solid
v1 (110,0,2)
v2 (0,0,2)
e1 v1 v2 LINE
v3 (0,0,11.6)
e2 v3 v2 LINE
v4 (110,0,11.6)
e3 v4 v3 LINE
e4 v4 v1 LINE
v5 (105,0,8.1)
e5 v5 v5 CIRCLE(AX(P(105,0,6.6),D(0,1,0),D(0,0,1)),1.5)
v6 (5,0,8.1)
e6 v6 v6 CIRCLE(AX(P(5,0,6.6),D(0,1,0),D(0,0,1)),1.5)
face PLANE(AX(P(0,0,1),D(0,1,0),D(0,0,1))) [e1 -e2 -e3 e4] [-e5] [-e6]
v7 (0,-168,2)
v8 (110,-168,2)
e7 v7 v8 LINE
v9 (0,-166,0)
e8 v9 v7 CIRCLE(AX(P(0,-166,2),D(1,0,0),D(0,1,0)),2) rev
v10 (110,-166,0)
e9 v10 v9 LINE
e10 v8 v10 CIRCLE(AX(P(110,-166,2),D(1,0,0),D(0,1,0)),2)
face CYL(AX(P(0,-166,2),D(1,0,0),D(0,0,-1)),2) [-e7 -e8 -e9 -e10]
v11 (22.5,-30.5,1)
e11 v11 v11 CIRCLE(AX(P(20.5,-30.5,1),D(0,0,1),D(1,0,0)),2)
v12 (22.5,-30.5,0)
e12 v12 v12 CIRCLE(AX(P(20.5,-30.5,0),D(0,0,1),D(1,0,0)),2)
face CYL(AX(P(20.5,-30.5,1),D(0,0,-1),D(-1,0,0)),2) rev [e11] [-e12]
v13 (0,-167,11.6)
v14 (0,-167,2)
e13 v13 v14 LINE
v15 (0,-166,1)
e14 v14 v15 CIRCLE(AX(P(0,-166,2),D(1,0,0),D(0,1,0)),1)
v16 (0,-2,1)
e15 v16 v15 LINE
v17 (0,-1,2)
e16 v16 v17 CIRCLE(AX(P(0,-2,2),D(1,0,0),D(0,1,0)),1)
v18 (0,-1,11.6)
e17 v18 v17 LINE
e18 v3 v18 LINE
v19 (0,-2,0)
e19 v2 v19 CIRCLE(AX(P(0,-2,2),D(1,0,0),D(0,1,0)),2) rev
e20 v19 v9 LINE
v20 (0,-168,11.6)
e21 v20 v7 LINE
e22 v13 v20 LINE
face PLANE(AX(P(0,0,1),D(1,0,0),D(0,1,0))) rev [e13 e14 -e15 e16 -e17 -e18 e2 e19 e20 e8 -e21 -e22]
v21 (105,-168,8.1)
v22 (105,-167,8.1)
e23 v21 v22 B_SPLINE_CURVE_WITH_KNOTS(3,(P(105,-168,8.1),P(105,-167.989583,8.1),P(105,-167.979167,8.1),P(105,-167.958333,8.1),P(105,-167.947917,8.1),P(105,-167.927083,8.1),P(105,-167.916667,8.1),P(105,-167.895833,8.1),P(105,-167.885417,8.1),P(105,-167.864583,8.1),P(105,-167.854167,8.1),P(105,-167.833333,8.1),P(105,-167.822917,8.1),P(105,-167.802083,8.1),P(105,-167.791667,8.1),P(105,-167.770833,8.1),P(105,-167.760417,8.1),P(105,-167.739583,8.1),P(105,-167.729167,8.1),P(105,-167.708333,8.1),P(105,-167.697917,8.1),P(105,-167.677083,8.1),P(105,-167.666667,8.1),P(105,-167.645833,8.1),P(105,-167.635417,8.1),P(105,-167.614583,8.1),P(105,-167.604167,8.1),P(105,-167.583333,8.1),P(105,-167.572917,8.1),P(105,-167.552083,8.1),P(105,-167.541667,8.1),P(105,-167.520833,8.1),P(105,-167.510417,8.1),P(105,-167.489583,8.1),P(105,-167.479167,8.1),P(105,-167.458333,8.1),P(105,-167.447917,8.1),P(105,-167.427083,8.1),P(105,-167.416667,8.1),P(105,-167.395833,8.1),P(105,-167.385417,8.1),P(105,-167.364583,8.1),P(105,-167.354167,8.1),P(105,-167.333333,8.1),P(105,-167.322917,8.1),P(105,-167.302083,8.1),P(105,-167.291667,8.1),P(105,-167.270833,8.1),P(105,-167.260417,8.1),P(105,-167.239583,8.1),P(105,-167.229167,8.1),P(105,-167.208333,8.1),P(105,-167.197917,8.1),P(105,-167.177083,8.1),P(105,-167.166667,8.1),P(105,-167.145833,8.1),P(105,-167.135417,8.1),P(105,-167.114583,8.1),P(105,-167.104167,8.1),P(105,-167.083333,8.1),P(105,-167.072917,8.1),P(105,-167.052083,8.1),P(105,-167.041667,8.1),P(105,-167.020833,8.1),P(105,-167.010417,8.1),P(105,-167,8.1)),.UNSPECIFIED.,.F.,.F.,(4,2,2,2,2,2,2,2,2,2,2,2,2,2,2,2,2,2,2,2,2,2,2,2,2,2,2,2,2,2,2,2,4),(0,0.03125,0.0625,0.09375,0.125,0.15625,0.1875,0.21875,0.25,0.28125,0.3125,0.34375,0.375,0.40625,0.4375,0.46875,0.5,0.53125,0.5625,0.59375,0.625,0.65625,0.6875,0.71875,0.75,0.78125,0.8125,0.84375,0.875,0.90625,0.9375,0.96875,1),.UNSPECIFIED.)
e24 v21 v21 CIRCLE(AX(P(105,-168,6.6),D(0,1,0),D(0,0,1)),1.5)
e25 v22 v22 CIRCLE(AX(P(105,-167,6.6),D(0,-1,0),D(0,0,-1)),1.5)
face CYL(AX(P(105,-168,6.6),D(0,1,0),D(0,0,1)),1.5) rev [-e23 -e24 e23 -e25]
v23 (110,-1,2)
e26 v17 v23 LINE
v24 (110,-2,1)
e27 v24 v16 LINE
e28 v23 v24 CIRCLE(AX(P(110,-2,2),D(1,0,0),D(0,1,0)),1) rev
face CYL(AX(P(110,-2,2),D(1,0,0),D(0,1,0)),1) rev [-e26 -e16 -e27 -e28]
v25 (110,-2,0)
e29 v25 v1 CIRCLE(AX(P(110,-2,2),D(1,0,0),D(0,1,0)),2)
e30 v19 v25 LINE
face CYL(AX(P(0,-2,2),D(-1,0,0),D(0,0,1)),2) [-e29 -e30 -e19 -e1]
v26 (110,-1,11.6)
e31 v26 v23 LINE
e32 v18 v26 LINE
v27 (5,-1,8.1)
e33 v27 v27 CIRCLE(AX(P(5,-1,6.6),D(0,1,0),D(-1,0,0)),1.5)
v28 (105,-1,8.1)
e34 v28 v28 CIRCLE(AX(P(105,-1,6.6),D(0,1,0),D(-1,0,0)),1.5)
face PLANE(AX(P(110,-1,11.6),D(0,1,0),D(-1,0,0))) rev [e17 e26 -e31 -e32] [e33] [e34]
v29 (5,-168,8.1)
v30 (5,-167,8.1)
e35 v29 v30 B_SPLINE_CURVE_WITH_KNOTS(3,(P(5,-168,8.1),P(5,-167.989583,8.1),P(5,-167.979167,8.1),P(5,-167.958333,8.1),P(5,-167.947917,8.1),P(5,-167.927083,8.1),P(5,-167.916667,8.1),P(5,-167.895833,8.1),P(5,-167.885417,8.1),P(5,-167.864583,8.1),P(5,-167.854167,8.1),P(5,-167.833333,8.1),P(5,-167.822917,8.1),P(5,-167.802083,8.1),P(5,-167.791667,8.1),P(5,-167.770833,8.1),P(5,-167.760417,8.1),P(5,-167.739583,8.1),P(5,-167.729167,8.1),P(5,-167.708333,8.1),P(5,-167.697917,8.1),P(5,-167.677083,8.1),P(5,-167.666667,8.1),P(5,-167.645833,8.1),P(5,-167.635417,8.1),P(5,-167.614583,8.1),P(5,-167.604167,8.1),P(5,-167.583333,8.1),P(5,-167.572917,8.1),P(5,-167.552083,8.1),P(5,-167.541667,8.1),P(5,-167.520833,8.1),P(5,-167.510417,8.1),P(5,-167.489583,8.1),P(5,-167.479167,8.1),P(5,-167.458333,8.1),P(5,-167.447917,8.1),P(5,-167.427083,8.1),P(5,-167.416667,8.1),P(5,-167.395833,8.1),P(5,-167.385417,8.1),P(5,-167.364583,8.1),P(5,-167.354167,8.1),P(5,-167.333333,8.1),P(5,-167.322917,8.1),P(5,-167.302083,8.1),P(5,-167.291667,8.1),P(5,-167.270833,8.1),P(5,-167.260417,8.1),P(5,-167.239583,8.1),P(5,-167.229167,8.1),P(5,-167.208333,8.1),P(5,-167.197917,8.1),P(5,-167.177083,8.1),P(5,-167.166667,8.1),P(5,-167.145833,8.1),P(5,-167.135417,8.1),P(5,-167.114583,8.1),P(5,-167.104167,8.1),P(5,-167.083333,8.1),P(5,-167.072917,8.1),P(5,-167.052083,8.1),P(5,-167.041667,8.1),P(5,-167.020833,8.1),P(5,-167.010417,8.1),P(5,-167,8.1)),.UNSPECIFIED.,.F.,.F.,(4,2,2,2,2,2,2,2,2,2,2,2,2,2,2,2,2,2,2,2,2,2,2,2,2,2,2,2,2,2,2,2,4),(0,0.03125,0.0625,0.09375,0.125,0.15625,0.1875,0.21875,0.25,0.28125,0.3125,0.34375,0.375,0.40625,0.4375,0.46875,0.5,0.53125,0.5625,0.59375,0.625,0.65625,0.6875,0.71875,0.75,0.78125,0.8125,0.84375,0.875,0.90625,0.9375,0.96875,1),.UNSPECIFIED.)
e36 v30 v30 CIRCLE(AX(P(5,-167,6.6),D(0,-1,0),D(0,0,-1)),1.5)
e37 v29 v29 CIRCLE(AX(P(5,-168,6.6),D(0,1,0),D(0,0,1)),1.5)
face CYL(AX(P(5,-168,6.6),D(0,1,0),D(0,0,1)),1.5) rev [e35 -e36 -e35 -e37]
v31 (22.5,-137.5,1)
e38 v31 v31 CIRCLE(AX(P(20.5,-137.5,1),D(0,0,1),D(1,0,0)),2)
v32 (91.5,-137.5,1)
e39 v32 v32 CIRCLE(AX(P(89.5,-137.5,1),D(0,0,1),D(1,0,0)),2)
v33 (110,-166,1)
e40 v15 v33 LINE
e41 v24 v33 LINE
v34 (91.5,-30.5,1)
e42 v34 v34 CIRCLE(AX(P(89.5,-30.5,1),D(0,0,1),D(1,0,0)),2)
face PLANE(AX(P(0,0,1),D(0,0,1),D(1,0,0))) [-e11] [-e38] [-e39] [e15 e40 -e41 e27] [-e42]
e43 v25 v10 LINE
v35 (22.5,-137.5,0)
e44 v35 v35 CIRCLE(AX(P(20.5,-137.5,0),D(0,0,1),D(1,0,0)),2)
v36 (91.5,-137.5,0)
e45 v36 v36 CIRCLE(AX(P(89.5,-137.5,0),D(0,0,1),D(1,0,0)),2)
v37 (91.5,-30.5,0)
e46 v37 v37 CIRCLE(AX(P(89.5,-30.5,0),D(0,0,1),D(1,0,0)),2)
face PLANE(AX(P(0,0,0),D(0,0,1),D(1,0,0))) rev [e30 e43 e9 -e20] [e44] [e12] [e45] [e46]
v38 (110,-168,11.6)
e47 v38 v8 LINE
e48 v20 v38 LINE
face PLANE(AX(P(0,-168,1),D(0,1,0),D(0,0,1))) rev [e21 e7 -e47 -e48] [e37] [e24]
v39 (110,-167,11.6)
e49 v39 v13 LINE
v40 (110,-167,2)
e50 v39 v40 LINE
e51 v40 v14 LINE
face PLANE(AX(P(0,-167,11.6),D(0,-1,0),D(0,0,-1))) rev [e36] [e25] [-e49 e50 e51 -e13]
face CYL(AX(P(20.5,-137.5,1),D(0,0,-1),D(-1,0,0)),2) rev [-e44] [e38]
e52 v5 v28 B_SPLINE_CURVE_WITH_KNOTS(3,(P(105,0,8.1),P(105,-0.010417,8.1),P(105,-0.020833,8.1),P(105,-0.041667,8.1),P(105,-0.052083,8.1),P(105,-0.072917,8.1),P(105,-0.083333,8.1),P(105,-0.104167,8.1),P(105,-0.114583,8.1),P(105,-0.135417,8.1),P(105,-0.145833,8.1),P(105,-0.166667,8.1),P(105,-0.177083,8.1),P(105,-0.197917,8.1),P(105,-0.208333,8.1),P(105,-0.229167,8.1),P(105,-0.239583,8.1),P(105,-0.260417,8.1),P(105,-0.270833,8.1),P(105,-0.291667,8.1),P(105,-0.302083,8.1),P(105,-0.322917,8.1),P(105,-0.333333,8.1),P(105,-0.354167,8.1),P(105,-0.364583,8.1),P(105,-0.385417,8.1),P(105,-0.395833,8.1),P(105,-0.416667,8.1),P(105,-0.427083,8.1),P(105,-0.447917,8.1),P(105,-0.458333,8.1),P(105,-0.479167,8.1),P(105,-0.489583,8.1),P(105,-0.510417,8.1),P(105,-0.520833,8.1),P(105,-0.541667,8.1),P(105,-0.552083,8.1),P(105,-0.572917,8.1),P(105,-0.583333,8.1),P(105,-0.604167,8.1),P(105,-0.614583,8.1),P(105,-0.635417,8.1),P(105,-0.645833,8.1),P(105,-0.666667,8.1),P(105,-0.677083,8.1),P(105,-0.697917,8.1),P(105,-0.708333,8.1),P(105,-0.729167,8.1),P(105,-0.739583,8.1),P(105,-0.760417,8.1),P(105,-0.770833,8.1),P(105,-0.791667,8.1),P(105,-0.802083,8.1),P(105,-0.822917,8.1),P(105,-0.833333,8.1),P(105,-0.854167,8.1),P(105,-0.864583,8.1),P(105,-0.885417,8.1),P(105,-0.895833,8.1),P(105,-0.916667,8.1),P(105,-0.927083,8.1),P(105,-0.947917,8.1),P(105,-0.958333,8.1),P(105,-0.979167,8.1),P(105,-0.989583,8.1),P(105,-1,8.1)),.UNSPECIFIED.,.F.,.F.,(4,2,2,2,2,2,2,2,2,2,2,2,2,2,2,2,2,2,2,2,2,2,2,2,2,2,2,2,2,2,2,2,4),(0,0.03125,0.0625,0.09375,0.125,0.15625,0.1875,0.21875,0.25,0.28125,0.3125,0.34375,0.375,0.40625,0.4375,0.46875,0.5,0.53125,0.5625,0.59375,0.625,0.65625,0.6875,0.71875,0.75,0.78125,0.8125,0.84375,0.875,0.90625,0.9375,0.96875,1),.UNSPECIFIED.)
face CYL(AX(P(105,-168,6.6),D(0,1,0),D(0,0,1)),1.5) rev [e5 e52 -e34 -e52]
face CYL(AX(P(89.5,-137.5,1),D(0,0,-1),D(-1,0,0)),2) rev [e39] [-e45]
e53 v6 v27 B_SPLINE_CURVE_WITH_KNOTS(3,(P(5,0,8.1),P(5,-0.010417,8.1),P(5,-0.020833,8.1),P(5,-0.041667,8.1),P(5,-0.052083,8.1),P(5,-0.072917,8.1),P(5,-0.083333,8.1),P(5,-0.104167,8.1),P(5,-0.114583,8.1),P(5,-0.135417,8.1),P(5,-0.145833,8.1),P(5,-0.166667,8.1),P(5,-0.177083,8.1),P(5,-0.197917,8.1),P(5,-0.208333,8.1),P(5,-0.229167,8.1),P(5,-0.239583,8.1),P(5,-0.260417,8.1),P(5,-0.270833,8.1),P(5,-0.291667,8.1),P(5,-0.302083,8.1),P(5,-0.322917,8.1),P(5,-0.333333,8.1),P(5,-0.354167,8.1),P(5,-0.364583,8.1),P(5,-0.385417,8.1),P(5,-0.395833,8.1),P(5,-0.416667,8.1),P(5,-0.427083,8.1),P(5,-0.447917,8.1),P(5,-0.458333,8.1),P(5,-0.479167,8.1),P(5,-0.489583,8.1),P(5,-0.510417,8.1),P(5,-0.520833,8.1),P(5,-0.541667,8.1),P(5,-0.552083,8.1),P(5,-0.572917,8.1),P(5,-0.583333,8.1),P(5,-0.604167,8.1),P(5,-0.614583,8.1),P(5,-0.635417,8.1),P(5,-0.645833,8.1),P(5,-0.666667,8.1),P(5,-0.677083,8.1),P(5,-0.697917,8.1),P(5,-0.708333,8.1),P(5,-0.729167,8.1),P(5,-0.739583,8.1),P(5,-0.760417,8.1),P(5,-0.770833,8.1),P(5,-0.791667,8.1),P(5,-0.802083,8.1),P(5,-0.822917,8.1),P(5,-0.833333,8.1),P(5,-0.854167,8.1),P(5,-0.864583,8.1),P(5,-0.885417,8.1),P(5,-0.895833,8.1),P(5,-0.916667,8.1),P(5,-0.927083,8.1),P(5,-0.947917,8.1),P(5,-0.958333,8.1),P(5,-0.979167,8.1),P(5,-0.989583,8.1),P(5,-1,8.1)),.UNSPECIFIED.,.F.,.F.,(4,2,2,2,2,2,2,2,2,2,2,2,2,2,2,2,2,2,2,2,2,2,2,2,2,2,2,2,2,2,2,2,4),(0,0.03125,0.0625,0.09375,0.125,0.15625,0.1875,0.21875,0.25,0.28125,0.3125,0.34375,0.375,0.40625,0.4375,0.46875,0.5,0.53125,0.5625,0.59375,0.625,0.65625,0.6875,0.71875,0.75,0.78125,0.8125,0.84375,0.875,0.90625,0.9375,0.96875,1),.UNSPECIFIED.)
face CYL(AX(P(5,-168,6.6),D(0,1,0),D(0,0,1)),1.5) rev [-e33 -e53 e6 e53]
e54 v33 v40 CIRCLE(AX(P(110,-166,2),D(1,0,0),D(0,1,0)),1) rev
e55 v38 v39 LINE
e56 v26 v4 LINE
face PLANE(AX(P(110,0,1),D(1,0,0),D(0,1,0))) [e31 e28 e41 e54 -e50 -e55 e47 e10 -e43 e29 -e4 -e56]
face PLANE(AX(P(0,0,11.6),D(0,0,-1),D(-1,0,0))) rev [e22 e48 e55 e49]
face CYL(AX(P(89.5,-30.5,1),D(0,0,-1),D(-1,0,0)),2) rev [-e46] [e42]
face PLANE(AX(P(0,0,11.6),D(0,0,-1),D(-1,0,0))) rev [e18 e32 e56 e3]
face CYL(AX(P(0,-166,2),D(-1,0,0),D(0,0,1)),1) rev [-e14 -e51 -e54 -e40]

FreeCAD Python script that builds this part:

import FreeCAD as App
import Part
import Sketcher


def edges_at(feature, points):
    """Names of the edges that pass closest to the given points."""
    edges = feature.Shape.Edges
    near = lambda p: min(range(len(edges)), key=lambda i: edges[i].distToShape(Part.Vertex(*p))[0])
    return sorted({f"Edge{near(p) + 1}" for p in points})

doc = App.newDocument("Part")
body = doc.addObject("PartDesign::Body", "Body")

# Sketch on XY plane
sketch1 = body.newObject("Sketcher::SketchObject", "Sketch")
sketch1.AttachmentSupport = (doc.getObject("XY_Plane"), [""])
sketch1.MapMode = "FlatFace"
sketch1.addGeometry([
    Part.LineSegment(App.Vector(0, 0, 0), App.Vector(0, -168, 0)),  # 0
    Part.LineSegment(App.Vector(0, -168, 0), App.Vector(110, -168, 0)),  # 1
    Part.LineSegment(App.Vector(110, -168, 0), App.Vector(110, 0, 0)),  # 2
    Part.LineSegment(App.Vector(110, 0, 0), App.Vector(0, 0, 0)),  # 3
    Part.Circle(App.Vector(20.5, -137.5, 0), App.Vector(0, 0, 1), 2),  # 4
    Part.Circle(App.Vector(89.5, -137.5, 0), App.Vector(0, 0, 1), 2),  # 5
    Part.Circle(App.Vector(20.5, -30.5, 0), App.Vector(0, 0, 1), 2),  # 6
    Part.Circle(App.Vector(89.5, -30.5, 0), App.Vector(0, 0, 1), 2),  # 7
], False)
sketch1.addConstraint([
    Sketcher.Constraint("Coincident", 0, 2, 1, 1),
    Sketcher.Constraint("Coincident", 1, 2, 2, 1),
    Sketcher.Constraint("Coincident", 2, 2, 3, 1),
    Sketcher.Constraint("Coincident", 3, 2, 0, 1),
    Sketcher.Constraint("Vertical", 0),
    Sketcher.Constraint("Horizontal", 1),
    Sketcher.Constraint("Vertical", 2),
    Sketcher.Constraint("Horizontal", 3),
    Sketcher.Constraint("Coincident", 3, 2, -1, 1),
    Sketcher.Constraint("Equal", 4, 5),
    Sketcher.Constraint("Equal", 5, 6),
    Sketcher.Constraint("Equal", 6, 7),
    Sketcher.Constraint("Horizontal", 4, 3, 5, 3),
    Sketcher.Constraint("Horizontal", 6, 3, 7, 3),
    Sketcher.Constraint("Vertical", 4, 3, 6, 3),
    Sketcher.Constraint("Vertical", 5, 3, 7, 3),
    Sketcher.Constraint("Diameter", 4, 4.0),
    Sketcher.Constraint("DistanceX", 1, 1, 1, 2, 110.0),
    Sketcher.Constraint("DistanceY", 0, 2, 0, 1, 168.0),
    Sketcher.Constraint("DistanceX", 4, 3, 5, 3, 69.0),
    Sketcher.Constraint("DistanceY", 4, 3, 6, 3, 107.0),
    Sketcher.Constraint("DistanceX", -1, 1, 4, 3, 20.5),
    Sketcher.Constraint("DistanceY", 4, 3, -1, 1, 137.5),
])
pad1 = body.newObject("PartDesign::Pad", "Pad")
pad1.Profile = sketch1
pad1.Length = 1

# Sketch on XY plane
sketch2 = body.newObject("Sketcher::SketchObject", "Sketch001")
sketch2.AttachmentSupport = (doc.getObject("XY_Plane"), [""])
sketch2.MapMode = "FlatFace"
sketch2.AttachmentOffset = App.Placement(App.Vector(0, 0, 1), App.Rotation())
sketch2.addGeometry([
    Part.LineSegment(App.Vector(0, -167, 0), App.Vector(0, -168, 0)),  # 0
    Part.LineSegment(App.Vector(0, -168, 0), App.Vector(110, -168, 0)),  # 1
    Part.LineSegment(App.Vector(110, -168, 0), App.Vector(110, -167, 0)),  # 2
    Part.LineSegment(App.Vector(110, -167, 0), App.Vector(0, -167, 0)),  # 3
    Part.LineSegment(App.Vector(0, 0, 0), App.Vector(0, -1, 0)),  # 4
    Part.LineSegment(App.Vector(0, -1, 0), App.Vector(110, -1, 0)),  # 5
    Part.LineSegment(App.Vector(110, -1, 0), App.Vector(110, 0, 0)),  # 6
    Part.LineSegment(App.Vector(110, 0, 0), App.Vector(0, 0, 0)),  # 7
], False)
sketch2.addConstraint([
    Sketcher.Constraint("Coincident", 0, 2, 1, 1),
    Sketcher.Constraint("Coincident", 1, 2, 2, 1),
    Sketcher.Constraint("Coincident", 2, 2, 3, 1),
    Sketcher.Constraint("Coincident", 3, 2, 0, 1),
    Sketcher.Constraint("Coincident", 4, 2, 5, 1),
    Sketcher.Constraint("Coincident", 5, 2, 6, 1),
    Sketcher.Constraint("Coincident", 6, 2, 7, 1),
    Sketcher.Constraint("Coincident", 7, 2, 4, 1),
    Sketcher.Constraint("Vertical", 0),
    Sketcher.Constraint("Horizontal", 1),
    Sketcher.Constraint("Vertical", 2),
    Sketcher.Constraint("Horizontal", 3),
    Sketcher.Constraint("Vertical", 4),
    Sketcher.Constraint("Horizontal", 5),
    Sketcher.Constraint("Vertical", 6),
    Sketcher.Constraint("Horizontal", 7),
    Sketcher.Constraint("Coincident", 7, 2, -1, 1),
    Sketcher.Constraint("PointOnObject", 0, 2, -2),
    Sketcher.Constraint("Vertical", 2, 2, 5, 2),
    Sketcher.Constraint("Equal", 2, 4),
    Sketcher.Constraint("DistanceX", 1, 1, 1, 2, 110.0),
    Sketcher.Constraint("DistanceY", 0, 2, 0, 1, 1.0),
    Sketcher.Constraint("DistanceY", 0, 2, -1, 1, 168.0),
])
pad2 = body.newObject("PartDesign::Pad", "Pad001")
pad2.Profile = sketch2
pad2.Length = 10.6
doc.recompute()

fillet = body.newObject("PartDesign::Fillet", "Fillet")
fillet.Base = (pad2, edges_at(pad2, [(55, 0, 0), (55, -168, 0)]))
fillet.Radius = 2
doc.recompute()

fillet2 = body.newObject("PartDesign::Fillet", "Fillet001")
fillet2.Base = (fillet, edges_at(fillet, [(55, -167, 1), (55, -1, 1)]))
fillet2.Radius = 1

# Sketch on XZ plane
sketch3 = body.newObject("Sketcher::SketchObject", "Sketch002")
sketch3.AttachmentSupport = (doc.getObject("XZ_Plane"), [""])
sketch3.MapMode = "FlatFace"
sketch3.addGeometry([
    Part.Circle(App.Vector(105, 6.6, 0), App.Vector(0, 0, 1), 1.5),
    Part.Circle(App.Vector(5, 6.6, 0), App.Vector(0, 0, 1), 1.5),
], False)
sketch3.addConstraint([
    Sketcher.Constraint("Equal", 0, 1),
    Sketcher.Constraint("Horizontal", 0, 3, 1, 3),
    Sketcher.Constraint("Diameter", 0, 3.0),
    Sketcher.Constraint("DistanceX", -1, 1, 0, 3, 105.0),
    Sketcher.Constraint("DistanceX", -1, 1, 1, 3, 5.0),
    Sketcher.Constraint("DistanceY", -1, 1, 0, 3, 6.6),
])
pocket1 = body.newObject("PartDesign::Pocket", "Pocket")
pocket1.Profile = sketch3
pocket1.Type = "ThroughAll"
pocket1.Reversed = True

doc.recompute()
